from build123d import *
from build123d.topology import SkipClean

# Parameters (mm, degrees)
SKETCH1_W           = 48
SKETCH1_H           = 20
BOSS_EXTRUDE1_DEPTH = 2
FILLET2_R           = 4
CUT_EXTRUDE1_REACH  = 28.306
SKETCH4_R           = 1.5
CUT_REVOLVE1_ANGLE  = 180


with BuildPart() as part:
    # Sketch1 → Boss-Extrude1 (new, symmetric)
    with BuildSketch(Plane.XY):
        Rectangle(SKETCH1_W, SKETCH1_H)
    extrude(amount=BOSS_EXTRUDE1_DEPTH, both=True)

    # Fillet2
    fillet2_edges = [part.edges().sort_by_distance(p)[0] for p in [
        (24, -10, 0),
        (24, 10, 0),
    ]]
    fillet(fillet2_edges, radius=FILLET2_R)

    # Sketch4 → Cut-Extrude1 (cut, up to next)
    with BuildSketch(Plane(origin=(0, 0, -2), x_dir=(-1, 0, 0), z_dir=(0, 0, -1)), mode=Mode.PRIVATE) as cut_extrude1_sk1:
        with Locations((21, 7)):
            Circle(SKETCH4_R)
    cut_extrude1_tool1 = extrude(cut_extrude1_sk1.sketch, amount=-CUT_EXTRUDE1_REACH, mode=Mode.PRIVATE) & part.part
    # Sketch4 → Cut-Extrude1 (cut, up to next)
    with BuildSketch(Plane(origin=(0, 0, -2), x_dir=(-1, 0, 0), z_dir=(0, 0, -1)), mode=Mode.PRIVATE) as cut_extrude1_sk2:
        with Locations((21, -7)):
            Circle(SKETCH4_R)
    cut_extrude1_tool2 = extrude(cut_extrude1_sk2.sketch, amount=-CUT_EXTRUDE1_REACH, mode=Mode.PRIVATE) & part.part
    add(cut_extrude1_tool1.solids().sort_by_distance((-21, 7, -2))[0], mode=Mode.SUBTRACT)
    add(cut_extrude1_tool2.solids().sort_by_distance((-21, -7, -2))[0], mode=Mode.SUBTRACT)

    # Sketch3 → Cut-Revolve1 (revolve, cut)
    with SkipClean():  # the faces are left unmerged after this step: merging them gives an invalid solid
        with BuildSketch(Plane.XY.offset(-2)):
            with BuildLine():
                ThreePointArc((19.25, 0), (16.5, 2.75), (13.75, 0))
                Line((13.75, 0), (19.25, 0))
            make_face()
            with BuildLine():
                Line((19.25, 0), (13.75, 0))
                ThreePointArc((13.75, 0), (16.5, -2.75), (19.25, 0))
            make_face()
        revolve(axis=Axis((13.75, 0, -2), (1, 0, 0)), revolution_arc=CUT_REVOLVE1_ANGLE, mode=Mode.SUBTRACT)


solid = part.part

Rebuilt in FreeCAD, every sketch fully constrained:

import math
import FreeCAD as App
import Part
import Sketcher
from FreeCAD import Vector
Q = App.Units.Quantity


def edges_at(feature, points):
    """Names of the edges that pass closest to the given points."""
    edges = feature.Shape.Edges
    near = lambda p: min(range(len(edges)), key=lambda i: edges[i].distToShape(Part.Vertex(*p))[0])
    return sorted({f"Edge{near(p) + 1}" for p in points})


def add_polygon(sketch, points):
    """Adds a closed chain of lines whose ends are joined by coincident constraints."""
    first, n = sketch.GeometryCount, len(points)
    for a, b in zip(points, points[1:] + points[:1]):
        sketch.addGeometry(Part.LineSegment(App.Vector(*a, 0), App.Vector(*b, 0)), False)
    for i in range(n):
        sketch.addConstraint(Sketcher.Constraint("Coincident", first + i, 2, first + (i + 1) % n, 1))

doc = App.newDocument("Part")
params = doc.addObject("Spreadsheet::Sheet", "Params")
for row, (alias, value) in enumerate([
    ("sketch1_width", "48 mm"),
    ("sketch1_height", "20 mm"),
    ("pad1_length", "4 mm"),
    ("fillet_radius", "4 mm"),
    ("sketch2_diameter", "3 mm"),
    ("sketch3_diameter", "3 mm"),
    ("sketch4_radius", "2.75 mm"),
    ("groove_angle", "180 deg"),
], start=1):
    params.set(f"A{row}", alias)
    params.set(f"B{row}", "=" + value)
    params.setAlias(f"B{row}", alias)

body = doc.addObject("PartDesign::Body", "Body")

# Sketch on XY plane
sketch1 = body.newObject("Sketcher::SketchObject", "Sketch")
sketch1.AttachmentSupport = (doc.getObject("XY_Plane"), [""])
sketch1.MapMode = "FlatFace"
add_polygon(sketch1, [(-24, 10), (-24, -10), (24, -10), (24, 10)])  # lines 0-3
sketch1.addConstraint([
    Sketcher.Constraint("Vertical", 0),
    Sketcher.Constraint("Horizontal", 1),
    Sketcher.Constraint("Vertical", 2),
    Sketcher.Constraint("Horizontal", 3),
    Sketcher.Constraint("Symmetric", 0, 2, 2, 2, -1, 1),
    Sketcher.Constraint("DistanceX", 1, 1, 1, 2, Q("48 mm")),
    Sketcher.Constraint("DistanceY", 0, 2, 0, 1, Q("20 mm")),
])
sketch1.setExpression("Constraints[9]", "Params.sketch1_width")
sketch1.setExpression("Constraints[10]", "Params.sketch1_height")
pad1 = body.newObject("PartDesign::Pad", "Pad")
pad1.Profile = sketch1
pad1.setExpression("Length", "Params.pad1_length")
pad1.Midplane = True
doc.recompute()

fillet = body.newObject("PartDesign::Fillet", "Fillet")
fillet.Base = (pad1, edges_at(pad1, [(24, -10, 0), (24, 10, 0)]))
fillet.setExpression("Radius", "Params.fillet_radius")

# Sketch on XY plane
sketch2 = body.newObject("Sketcher::SketchObject", "Sketch001")
sketch2.AttachmentSupport = (doc.getObject("XY_Plane"), [""])
sketch2.MapMode = "FlatFace"
sketch2.AttachmentOffset = App.Placement(Vector(0, 0, -2), App.Rotation())
sketch2.addGeometry(Part.Circle(Vector(-21, 7, 0), Vector(0, 0, 1), 1.5), False)
sketch2.addConstraint([
    Sketcher.Constraint("Diameter", 0, Q("3 mm")),
    Sketcher.Constraint("DistanceX", 0, 3, -1, 1, Q("21 mm")),
    Sketcher.Constraint("DistanceY", -1, 1, 0, 3, Q("7 mm")),
])
sketch2.setExpression("Constraints[0]", "Params.sketch2_diameter")
pocket1 = body.newObject("PartDesign::Pocket", "Pocket")
pocket1.Profile = sketch2
pocket1.Type = "UpToFirst"
pocket1.Reversed = True

# Sketch on XY plane
sketch3 = body.newObject("Sketcher::SketchObject", "Sketch002")
sketch3.AttachmentSupport = (doc.getObject("XY_Plane"), [""])
sketch3.MapMode = "FlatFace"
sketch3.AttachmentOffset = App.Placement(Vector(0, 0, -2), App.Rotation())
sketch3.addGeometry(Part.Circle(Vector(-21, -7, 0), Vector(0, 0, 1), 1.5), False)
sketch3.addConstraint([
    Sketcher.Constraint("Diameter", 0, Q("3 mm")),
    Sketcher.Constraint("DistanceX", 0, 3, -1, 1, Q("21 mm")),
    Sketcher.Constraint("DistanceY", 0, 3, -1, 1, Q("7 mm")),
])
sketch3.setExpression("Constraints[0]", "Params.sketch3_diameter")
pocket2 = body.newObject("PartDesign::Pocket", "Pocket001")
pocket2.Profile = sketch3
pocket2.Type = "UpToFirst"
pocket2.Reversed = True

# Sketch on XY plane
sketch4 = body.newObject("Sketcher::SketchObject", "Sketch003")
sketch4.AttachmentSupport = (doc.getObject("XY_Plane"), [""])
sketch4.MapMode = "FlatFace"
sketch4.AttachmentOffset = App.Placement(Vector(0, 0, -2), App.Rotation())
sketch4.addGeometry([
    Part.ArcOfCircle(Part.Circle(Vector(16.5, 0, 0), Vector(0, 0, 1), 2.75), math.radians(0), math.radians(180)),
    Part.LineSegment(Vector(13.75, 0, 0), Vector(19.25, 0, 0)),
    Part.LineSegment(Vector(19.25, 0, 0), Vector(13.75, 0, 0)),
    Part.ArcOfCircle(Part.Circle(Vector(16.5, 0, 0), Vector(0, 0, 1), 2.75), math.radians(180), math.radians(360)),
], False)
sketch4.addConstraint([
    Sketcher.Constraint("Coincident", 0, 1, 1, 2),
    Sketcher.Constraint("Coincident", 1, 1, 0, 2),
    Sketcher.Constraint("Coincident", 2, 1, 3, 2),
    Sketcher.Constraint("Coincident", 3, 1, 2, 2),
    Sketcher.Constraint("Horizontal", 1),
    Sketcher.Constraint("Horizontal", 2),
    Sketcher.Constraint("Coincident", 3, 3, 0, 3),
    Sketcher.Constraint("Coincident", 2, 1, 0, 1),
    Sketcher.Constraint("PointOnObject", 0, 3, -1),
    Sketcher.Constraint("PointOnObject", 0, 1, -1),
    Sketcher.Constraint("Radius", 0, Q("2.75 mm")),
    Sketcher.Constraint("DistanceX", -1, 1, 0, 3, Q("16.5 mm")),
])
sketch4.setExpression("Constraints[10]", "Params.sketch4_radius")
groove = body.newObject("PartDesign::Groove", "Groove")
groove.Profile = sketch4
groove.ReferenceAxis = (sketch4, ["H_Axis"])
groove.setExpression("Angle", "Params.groove_angle")

doc.recompute()
